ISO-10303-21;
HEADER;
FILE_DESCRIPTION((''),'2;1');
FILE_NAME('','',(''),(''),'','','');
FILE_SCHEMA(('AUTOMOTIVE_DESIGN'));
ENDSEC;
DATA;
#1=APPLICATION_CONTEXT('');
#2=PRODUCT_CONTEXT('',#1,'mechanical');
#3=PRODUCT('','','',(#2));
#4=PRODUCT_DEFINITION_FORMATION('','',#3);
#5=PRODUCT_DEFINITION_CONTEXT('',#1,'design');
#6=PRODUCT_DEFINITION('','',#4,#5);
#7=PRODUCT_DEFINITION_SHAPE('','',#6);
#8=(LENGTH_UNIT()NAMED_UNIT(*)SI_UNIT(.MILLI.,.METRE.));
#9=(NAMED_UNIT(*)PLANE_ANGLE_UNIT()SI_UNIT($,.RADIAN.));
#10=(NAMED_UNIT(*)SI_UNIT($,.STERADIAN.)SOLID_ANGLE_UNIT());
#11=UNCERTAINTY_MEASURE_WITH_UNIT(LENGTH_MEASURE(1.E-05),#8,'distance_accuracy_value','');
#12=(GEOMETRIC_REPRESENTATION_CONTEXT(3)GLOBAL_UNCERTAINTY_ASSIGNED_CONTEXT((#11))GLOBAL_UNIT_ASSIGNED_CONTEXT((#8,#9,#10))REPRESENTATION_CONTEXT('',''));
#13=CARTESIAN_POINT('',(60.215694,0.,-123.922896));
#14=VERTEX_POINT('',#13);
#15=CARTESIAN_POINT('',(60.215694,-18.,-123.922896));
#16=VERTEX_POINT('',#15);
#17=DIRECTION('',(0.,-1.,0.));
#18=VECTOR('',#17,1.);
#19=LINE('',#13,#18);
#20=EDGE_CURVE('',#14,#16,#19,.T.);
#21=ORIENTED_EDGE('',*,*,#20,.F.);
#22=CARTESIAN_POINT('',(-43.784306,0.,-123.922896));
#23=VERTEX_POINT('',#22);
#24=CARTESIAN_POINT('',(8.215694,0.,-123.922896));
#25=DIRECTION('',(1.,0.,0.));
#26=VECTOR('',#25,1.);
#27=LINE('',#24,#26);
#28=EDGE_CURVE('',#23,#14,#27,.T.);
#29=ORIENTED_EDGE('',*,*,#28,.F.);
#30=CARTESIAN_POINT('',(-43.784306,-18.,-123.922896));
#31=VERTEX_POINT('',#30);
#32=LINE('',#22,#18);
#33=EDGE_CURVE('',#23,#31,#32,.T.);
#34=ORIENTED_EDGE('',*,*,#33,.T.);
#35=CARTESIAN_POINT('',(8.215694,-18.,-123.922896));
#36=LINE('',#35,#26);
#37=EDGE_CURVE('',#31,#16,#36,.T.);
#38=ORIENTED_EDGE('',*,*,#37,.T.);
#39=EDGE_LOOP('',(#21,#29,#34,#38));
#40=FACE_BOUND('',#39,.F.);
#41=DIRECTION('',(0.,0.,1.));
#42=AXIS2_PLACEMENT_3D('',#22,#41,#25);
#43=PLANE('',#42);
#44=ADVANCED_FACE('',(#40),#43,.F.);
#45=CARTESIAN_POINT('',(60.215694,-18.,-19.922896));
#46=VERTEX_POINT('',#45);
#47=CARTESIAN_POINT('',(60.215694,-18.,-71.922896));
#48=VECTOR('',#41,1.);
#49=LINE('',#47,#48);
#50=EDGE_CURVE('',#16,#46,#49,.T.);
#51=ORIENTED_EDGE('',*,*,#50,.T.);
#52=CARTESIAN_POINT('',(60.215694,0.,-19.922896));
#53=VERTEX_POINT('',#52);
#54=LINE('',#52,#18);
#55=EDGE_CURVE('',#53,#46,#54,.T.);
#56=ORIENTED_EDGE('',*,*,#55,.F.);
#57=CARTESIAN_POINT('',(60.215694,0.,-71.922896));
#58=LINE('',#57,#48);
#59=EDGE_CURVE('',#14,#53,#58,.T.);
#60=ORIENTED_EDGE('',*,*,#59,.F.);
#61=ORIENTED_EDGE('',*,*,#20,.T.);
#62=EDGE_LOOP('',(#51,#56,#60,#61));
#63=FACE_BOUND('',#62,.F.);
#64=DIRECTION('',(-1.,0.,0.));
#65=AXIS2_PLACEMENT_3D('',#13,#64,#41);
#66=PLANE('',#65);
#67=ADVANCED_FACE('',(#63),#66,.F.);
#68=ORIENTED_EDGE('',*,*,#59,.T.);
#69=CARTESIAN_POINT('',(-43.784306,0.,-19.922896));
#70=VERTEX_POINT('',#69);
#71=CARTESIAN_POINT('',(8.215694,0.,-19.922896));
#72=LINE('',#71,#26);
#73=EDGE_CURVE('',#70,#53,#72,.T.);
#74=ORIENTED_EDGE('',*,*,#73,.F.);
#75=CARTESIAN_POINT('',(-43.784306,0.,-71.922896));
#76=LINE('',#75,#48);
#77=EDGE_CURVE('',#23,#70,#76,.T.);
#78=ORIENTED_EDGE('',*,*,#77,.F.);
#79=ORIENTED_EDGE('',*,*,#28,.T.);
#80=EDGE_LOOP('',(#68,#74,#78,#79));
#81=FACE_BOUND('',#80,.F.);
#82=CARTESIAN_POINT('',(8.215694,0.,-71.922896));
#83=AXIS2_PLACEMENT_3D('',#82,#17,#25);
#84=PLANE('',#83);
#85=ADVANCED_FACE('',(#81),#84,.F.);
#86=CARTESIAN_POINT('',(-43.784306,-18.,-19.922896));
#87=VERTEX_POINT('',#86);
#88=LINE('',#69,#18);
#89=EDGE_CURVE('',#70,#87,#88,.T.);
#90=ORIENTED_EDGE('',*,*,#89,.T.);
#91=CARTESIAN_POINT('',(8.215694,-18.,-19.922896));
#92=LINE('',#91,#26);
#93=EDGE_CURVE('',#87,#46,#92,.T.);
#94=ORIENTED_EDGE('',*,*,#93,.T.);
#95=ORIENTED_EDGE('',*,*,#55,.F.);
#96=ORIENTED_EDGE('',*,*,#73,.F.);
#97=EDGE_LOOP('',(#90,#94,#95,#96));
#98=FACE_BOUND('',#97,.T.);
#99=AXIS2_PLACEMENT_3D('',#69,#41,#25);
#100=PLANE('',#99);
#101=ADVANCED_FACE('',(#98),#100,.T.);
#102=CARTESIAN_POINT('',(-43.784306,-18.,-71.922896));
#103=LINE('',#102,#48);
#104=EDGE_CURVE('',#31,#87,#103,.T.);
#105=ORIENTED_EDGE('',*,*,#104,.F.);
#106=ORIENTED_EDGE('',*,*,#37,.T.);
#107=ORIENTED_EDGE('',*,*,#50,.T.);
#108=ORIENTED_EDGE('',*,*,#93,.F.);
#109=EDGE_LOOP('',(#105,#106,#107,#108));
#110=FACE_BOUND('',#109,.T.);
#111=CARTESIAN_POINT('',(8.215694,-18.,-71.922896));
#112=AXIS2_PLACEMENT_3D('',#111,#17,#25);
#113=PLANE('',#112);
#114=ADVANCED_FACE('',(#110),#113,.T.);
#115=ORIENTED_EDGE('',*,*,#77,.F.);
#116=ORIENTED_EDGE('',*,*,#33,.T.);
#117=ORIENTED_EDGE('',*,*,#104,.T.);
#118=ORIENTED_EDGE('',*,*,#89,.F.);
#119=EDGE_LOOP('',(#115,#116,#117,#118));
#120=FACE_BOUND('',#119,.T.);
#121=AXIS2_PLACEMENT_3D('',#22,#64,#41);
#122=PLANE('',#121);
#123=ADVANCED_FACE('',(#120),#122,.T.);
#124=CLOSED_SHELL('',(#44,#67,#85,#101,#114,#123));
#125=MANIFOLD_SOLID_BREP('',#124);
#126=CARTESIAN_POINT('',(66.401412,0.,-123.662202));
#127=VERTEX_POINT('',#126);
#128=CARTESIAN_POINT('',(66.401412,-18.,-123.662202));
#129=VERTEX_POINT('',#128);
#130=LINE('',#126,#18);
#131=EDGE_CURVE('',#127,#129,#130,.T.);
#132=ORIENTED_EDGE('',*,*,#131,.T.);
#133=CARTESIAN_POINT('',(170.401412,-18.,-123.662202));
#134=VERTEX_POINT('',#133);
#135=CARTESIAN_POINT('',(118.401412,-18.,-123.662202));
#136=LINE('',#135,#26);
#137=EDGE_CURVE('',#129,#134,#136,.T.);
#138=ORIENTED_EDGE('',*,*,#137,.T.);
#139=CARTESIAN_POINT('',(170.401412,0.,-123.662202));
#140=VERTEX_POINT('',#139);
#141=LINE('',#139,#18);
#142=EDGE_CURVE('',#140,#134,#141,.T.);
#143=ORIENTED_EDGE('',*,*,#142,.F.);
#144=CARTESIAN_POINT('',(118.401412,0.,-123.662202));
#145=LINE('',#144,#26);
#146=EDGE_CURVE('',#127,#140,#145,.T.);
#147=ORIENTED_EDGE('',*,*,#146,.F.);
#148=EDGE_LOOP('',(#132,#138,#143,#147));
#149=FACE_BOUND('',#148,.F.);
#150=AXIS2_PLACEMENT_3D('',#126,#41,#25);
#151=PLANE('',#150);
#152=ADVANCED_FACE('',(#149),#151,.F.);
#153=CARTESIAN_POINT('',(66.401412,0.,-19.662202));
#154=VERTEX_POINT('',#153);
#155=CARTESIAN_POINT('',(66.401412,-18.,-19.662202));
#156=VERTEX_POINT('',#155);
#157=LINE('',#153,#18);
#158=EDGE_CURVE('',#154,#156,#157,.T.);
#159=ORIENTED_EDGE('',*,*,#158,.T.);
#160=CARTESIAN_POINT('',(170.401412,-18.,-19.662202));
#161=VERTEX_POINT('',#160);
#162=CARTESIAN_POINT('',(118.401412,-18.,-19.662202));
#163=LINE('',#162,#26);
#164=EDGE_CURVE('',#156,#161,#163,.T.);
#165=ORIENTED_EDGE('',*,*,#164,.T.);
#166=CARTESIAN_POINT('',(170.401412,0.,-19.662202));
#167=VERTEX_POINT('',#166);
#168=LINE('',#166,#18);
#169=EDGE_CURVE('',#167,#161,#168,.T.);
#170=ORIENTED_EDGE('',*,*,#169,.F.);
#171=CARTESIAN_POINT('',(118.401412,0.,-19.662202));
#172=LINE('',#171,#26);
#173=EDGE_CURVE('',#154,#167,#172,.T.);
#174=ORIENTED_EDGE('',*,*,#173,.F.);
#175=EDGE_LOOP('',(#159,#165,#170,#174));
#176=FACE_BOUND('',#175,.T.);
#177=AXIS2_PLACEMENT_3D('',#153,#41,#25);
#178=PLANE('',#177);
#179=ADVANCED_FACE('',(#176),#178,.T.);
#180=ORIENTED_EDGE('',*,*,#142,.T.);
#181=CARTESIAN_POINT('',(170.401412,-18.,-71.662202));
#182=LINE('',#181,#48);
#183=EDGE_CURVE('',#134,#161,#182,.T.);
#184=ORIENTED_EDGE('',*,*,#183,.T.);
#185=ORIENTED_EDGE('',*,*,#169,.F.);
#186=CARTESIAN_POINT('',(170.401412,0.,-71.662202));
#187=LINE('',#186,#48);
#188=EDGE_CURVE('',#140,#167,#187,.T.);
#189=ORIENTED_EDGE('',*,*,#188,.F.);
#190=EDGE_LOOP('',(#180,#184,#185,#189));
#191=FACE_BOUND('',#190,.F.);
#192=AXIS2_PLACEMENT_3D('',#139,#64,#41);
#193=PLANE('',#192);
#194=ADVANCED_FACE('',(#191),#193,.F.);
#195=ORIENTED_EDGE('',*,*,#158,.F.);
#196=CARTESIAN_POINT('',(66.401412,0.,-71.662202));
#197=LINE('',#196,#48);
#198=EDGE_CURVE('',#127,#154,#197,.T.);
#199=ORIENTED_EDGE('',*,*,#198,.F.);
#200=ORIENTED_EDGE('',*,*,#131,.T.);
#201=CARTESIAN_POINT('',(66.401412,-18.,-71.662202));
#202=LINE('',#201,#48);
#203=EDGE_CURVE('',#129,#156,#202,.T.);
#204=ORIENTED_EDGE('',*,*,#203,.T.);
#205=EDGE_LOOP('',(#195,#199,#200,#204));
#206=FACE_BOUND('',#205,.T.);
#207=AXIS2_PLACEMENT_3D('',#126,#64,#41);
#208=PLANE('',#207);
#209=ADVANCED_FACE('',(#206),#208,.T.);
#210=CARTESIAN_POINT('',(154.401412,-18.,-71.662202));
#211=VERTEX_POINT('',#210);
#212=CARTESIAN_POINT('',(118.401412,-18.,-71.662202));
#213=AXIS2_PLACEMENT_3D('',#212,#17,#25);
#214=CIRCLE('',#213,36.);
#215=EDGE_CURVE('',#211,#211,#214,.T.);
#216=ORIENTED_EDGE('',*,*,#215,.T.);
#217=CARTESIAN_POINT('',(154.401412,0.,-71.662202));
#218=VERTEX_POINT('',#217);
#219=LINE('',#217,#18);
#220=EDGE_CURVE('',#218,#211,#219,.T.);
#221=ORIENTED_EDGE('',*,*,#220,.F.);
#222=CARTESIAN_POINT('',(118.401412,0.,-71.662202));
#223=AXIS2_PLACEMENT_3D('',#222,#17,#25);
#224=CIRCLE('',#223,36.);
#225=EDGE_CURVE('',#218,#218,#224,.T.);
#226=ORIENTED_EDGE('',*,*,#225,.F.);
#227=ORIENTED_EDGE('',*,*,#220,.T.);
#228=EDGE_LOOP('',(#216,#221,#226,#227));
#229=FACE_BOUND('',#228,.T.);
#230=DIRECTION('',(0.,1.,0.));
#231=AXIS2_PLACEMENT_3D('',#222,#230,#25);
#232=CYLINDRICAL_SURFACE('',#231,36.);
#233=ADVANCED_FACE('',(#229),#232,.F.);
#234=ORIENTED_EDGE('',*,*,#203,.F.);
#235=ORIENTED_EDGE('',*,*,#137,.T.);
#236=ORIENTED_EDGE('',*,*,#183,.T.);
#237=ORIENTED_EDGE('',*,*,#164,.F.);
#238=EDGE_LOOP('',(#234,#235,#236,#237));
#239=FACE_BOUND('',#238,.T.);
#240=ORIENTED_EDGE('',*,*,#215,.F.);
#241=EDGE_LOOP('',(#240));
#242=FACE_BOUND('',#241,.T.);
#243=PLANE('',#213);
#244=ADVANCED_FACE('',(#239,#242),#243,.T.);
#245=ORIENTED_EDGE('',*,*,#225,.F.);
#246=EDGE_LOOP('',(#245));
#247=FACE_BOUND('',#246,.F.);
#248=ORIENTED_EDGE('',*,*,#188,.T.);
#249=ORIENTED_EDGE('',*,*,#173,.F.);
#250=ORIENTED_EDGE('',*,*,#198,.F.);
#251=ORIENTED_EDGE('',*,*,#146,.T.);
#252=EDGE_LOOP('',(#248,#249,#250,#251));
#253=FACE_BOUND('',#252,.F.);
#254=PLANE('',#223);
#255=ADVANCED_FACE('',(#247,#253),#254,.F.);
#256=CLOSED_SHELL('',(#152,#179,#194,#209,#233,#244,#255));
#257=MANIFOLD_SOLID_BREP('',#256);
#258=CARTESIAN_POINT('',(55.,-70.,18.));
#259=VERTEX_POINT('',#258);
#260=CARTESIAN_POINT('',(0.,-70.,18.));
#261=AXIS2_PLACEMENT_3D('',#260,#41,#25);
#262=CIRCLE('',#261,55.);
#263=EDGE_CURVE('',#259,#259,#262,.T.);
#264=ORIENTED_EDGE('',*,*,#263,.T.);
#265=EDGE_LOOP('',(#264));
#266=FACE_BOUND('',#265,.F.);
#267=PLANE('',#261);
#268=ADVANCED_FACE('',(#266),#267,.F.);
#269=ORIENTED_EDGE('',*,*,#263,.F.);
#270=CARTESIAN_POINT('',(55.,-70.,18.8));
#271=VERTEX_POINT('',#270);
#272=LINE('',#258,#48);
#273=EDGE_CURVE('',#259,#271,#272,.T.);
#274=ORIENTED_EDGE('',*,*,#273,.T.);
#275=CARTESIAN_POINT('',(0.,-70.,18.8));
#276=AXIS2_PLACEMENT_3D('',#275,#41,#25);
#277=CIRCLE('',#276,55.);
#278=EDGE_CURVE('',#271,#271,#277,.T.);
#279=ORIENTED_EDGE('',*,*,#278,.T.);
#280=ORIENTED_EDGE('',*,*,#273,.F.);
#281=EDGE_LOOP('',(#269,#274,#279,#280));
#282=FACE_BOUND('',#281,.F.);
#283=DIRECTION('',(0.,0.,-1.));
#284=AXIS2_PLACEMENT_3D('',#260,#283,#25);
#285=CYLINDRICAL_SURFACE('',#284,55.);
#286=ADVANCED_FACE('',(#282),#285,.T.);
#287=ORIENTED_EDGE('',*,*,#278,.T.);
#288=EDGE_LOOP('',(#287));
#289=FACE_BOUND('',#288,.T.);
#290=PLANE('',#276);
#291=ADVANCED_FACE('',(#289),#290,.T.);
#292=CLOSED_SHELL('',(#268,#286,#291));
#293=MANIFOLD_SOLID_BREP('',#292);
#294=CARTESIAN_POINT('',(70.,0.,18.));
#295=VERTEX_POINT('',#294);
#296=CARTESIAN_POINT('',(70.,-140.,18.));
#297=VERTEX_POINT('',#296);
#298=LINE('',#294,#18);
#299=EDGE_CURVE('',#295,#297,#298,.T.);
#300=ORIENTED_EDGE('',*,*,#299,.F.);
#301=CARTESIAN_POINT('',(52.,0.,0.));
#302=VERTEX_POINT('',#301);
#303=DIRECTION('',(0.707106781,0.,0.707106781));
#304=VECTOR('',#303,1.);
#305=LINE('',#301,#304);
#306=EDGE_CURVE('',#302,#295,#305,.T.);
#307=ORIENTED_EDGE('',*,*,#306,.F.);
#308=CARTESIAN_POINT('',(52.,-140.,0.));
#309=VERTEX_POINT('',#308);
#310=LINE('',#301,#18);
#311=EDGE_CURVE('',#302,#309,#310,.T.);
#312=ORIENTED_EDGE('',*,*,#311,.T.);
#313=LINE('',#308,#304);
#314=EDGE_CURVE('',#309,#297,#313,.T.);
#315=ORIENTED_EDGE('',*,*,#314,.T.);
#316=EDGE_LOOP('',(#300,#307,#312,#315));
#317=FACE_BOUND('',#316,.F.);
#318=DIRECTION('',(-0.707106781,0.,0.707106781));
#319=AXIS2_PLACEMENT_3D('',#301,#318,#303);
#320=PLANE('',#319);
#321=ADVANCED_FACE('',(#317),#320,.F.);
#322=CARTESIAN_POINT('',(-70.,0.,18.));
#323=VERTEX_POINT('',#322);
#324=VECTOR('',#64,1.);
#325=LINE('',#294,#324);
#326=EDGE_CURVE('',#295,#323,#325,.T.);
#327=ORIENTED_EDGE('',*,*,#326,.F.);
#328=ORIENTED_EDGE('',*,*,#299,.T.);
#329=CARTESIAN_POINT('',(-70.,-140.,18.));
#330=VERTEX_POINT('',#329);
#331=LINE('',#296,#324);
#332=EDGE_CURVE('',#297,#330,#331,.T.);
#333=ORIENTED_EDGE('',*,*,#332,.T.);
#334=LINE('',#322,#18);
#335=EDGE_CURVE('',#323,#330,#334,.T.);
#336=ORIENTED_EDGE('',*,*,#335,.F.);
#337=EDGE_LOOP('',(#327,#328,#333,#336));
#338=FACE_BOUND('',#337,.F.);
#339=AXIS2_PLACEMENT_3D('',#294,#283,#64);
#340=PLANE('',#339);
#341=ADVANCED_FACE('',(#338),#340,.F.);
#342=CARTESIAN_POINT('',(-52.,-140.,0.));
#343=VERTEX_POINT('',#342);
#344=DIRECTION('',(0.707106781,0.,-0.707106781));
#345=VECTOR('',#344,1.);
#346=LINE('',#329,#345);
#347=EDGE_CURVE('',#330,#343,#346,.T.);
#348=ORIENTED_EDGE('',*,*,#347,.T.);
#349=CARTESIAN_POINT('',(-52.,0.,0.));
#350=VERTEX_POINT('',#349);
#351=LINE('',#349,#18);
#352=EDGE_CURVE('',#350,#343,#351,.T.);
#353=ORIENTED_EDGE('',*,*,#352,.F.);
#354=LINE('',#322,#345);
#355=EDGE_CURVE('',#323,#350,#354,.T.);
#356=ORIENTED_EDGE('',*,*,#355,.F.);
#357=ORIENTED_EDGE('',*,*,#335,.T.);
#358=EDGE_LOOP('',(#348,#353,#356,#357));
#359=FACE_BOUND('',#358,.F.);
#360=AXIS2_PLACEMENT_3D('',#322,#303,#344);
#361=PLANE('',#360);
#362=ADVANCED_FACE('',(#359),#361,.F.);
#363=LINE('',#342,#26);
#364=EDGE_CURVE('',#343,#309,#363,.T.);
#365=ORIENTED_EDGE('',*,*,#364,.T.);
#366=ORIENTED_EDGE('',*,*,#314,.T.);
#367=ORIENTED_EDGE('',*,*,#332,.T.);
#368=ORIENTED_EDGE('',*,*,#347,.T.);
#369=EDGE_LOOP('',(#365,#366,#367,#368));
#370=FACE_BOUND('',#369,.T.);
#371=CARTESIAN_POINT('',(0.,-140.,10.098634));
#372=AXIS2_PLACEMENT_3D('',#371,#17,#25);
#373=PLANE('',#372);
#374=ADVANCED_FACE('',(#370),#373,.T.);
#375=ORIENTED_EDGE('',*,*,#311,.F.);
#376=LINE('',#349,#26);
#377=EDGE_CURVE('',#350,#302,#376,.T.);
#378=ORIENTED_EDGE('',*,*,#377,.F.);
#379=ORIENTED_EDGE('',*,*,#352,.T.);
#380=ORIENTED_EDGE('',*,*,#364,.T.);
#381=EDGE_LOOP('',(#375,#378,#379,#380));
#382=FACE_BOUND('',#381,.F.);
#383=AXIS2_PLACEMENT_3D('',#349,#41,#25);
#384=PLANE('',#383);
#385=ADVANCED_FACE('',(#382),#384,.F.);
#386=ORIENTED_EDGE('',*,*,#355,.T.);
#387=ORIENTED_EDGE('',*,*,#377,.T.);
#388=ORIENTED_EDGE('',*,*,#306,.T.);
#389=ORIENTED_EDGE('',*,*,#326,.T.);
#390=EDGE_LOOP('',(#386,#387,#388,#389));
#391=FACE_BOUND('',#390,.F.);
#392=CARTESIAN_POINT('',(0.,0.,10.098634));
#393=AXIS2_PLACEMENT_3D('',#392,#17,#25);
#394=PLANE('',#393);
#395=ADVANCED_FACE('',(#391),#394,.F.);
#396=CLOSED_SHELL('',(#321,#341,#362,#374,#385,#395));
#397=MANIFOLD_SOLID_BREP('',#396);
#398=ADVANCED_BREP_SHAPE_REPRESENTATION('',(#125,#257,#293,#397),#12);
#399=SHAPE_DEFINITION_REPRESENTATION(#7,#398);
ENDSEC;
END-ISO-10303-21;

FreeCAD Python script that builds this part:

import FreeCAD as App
import Part
import Sketcher

V = App.Vector
Q = App.Units.Quantity

doc = App.newDocument("Part")
body = doc.addObject("PartDesign::Body", "Body")

sketch1 = doc.addObject("Sketcher::SketchObject", "Sketch")
body.addObject(sketch1)
sketch1.AttachmentSupport = (doc.XZ_Plane, [""])
sketch1.MapMode = "FlatFace"
sketch1.addGeometry([
    Part.LineSegment(V(-70, 18, 0), V(-52, 0, 0)),
    Part.LineSegment(V(-52, 0, 0), V(52, 0, 0)),
    Part.LineSegment(V(52, 0, 0), V(70, 18, 0)),
    Part.LineSegment(V(70, 18, 0), V(-70, 18, 0)),
], False)
sketch1.addConstraint([
    Sketcher.Constraint("Coincident", 0, 2, 1, 1),
    Sketcher.Constraint("Coincident", 1, 2, 2, 1),
    Sketcher.Constraint("Coincident", 2, 2, 3, 1),
    Sketcher.Constraint("Coincident", 3, 2, 0, 1),
    Sketcher.Constraint("Horizontal", 1),
    Sketcher.Constraint("Horizontal", 3),
    Sketcher.Constraint("Symmetric", 0, 2, 1, 2, -1, 1),
    Sketcher.Constraint("Perpendicular", 0, 2),
    Sketcher.Constraint("Equal", 0, 2),
    Sketcher.Constraint("DistanceX", 1, 1, 1, 2, Q("104 mm")),
    Sketcher.Constraint("DistanceX", 3, 2, 3, 1, Q("140 mm")),
])
pad1 = doc.addObject("PartDesign::Pad", "Pad")
body.addObject(pad1)
pad1.Profile = sketch1
pad1.Length = 140
body2 = doc.addObject("PartDesign::Body", "Body001")

sketch2 = doc.addObject("Sketcher::SketchObject", "Sketch001")
body2.addObject(sketch2)
sketch2.AttachmentSupport = (doc.getObject("XZ_Plane001"), [""])
sketch2.MapMode = "FlatFace"
sketch2.addGeometry([
    Part.LineSegment(V(-44, -20, 0), V(-44, -124, 0)),
    Part.LineSegment(V(-44, -124, 0), V(60, -124, 0)),
    Part.LineSegment(V(60, -124, 0), V(60, -20, 0)),
    Part.LineSegment(V(60, -20, 0), V(-44, -20, 0)),
], False)
sketch2.addConstraint([
    Sketcher.Constraint("Coincident", 0, 2, 1, 1),
    Sketcher.Constraint("Coincident", 1, 2, 2, 1),
    Sketcher.Constraint("Coincident", 2, 2, 3, 1),
    Sketcher.Constraint("Coincident", 3, 2, 0, 1),
    Sketcher.Constraint("Vertical", 0),
    Sketcher.Constraint("Horizontal", 1),
    Sketcher.Constraint("Vertical", 2),
    Sketcher.Constraint("Horizontal", 3),
    Sketcher.Constraint("Equal", 3, 0),
    Sketcher.Constraint("DistanceX", 1, 1, 1, 2, Q("104 mm")),
    Sketcher.Constraint("DistanceX", 0, 2, -1, 1, Q("43.784306 mm")),
    Sketcher.Constraint("DistanceY", 0, 2, -1, 1, Q("123.922896 mm")),
])
pad2 = doc.addObject("PartDesign::Pad", "Pad001")
body2.addObject(pad2)
pad2.Profile = sketch2
pad2.Length = 18
body3 = doc.addObject("PartDesign::Body", "Body002")

sketch3 = doc.addObject("Sketcher::SketchObject", "Sketch002")
body3.addObject(sketch3)
sketch3.AttachmentSupport = (doc.getObject("XZ_Plane002"), [""])
sketch3.MapMode = "FlatFace"
sketch3.addGeometry([
    Part.LineSegment(V(66, -20, 0), V(66, -124, 0)),
    Part.LineSegment(V(66, -124, 0), V(170, -124, 0)),
    Part.LineSegment(V(170, -124, 0), V(170, -20, 0)),
    Part.LineSegment(V(170, -20, 0), V(66, -20, 0)),
    Part.Circle(V(118, -72, 0), V(0, 0, 1), 36),
], False)
sketch3.addConstraint([
    Sketcher.Constraint("Coincident", 0, 2, 1, 1),
    Sketcher.Constraint("Coincident", 1, 2, 2, 1),
    Sketcher.Constraint("Coincident", 2, 2, 3, 1),
    Sketcher.Constraint("Coincident", 3, 2, 0, 1),
    Sketcher.Constraint("Vertical", 0),
    Sketcher.Constraint("Horizontal", 1),
    Sketcher.Constraint("Vertical", 2),
    Sketcher.Constraint("Horizontal", 3),
    Sketcher.Constraint("Equal", 3, 0),
    Sketcher.Constraint("Diameter", 4, Q("72 mm")),
    Sketcher.Constraint("DistanceX", 1, 1, 1, 2, Q("104 mm")),
    Sketcher.Constraint("DistanceX", 0, 2, 4, 3, Q("52 mm")),
    Sketcher.Constraint("DistanceY", 0, 2, 4, 3, Q("52 mm")),
    Sketcher.Constraint("DistanceY", 4, 3, -1, 1, Q("71.662202 mm")),
    Sketcher.Constraint("DistanceX", -1, 1, 4, 3, Q("118.401412 mm")),
])
pad3 = doc.addObject("PartDesign::Pad", "Pad002")
body3.addObject(pad3)
pad3.Profile = sketch3
pad3.Length = 18
body4 = doc.addObject("PartDesign::Body", "Body003")

sketch4 = doc.addObject("Sketcher::SketchObject", "Sketch003")
body4.addObject(sketch4)
sketch4.AttachmentSupport = (doc.getObject("XY_Plane003"), [""])
sketch4.MapMode = "FlatFace"
sketch4.AttachmentOffset = App.Placement(V(0, 0, 18), App.Rotation())
sketch4.addGeometry(Part.Circle(V(0, -70, 0), V(0, 0, 1), 55), False)
sketch4.addConstraint([
    Sketcher.Constraint("PointOnObject", 0, 3, -2),
    Sketcher.Constraint("Diameter", 0, Q("110 mm")),
    Sketcher.Constraint("DistanceY", 0, 3, -1, 1, Q("70 mm")),
])
pad4 = doc.addObject("PartDesign::Pad", "Pad003")
body4.addObject(pad4)
pad4.Profile = sketch4
pad4.Length = 0.8

doc.recompute()
